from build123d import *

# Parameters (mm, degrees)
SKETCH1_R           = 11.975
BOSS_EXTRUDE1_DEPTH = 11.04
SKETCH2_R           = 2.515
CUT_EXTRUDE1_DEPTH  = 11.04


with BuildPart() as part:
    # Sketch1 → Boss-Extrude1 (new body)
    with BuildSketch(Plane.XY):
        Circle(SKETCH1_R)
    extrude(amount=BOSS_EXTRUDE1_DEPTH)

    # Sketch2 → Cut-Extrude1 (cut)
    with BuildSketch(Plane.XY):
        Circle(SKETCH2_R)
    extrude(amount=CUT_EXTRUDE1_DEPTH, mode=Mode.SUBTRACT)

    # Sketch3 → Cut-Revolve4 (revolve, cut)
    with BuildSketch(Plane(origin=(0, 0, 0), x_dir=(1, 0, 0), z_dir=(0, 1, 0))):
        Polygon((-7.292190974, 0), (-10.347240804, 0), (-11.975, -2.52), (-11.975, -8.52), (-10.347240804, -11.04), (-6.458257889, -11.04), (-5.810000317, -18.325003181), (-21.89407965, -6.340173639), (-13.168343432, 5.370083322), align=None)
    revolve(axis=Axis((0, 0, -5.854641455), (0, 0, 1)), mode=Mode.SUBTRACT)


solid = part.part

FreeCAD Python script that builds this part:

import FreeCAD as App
import Part
import Sketcher

V = App.Vector


def add_polygon(sketch, points):
    """Adds a closed chain of lines whose ends are joined by coincident constraints."""
    first, n = sketch.GeometryCount, len(points)
    for a, b in zip(points, points[1:] + points[:1]):
        sketch.addGeometry(Part.LineSegment(App.Vector(*a, 0), App.Vector(*b, 0)), False)
    for i in range(n):
        sketch.addConstraint(Sketcher.Constraint("Coincident", first + i, 2, first + (i + 1) % n, 1))

doc = App.newDocument("Part")
body = doc.addObject("PartDesign::Body", "Body")

# Sketch on XY plane
sketch1 = body.newObject("Sketcher::SketchObject", "Sketch")
sketch1.AttachmentSupport = (doc.getObject("XY_Plane"), [""])
sketch1.MapMode = "FlatFace"
sketch1.addGeometry(Part.Circle(V(0, 0, 0), V(0, 0, 1), 12), False)
sketch1.addConstraint(Sketcher.Constraint("Coincident", 0, 3, -1, 1))
sketch1.addConstraint(Sketcher.Constraint("Diameter", 0, 23.95))
pad1 = body.newObject("PartDesign::Pad", "Pad")
pad1.Profile = sketch1
pad1.Length = 11.04

# Sketch on XY plane
sketch2 = body.newObject("Sketcher::SketchObject", "Sketch001")
sketch2.AttachmentSupport = (doc.getObject("XY_Plane"), [""])
sketch2.MapMode = "FlatFace"
sketch2.addGeometry(Part.Circle(V(0, 0, 0), V(0, 0, 1), 2.5), False)
sketch2.addConstraint(Sketcher.Constraint("Coincident", 0, 3, -1, 1))
sketch2.addConstraint(Sketcher.Constraint("Diameter", 0, 5.03))
pocket1 = body.newObject("PartDesign::Pocket", "Pocket")
pocket1.Profile = sketch2
pocket1.Length = 11.04
pocket1.Reversed = True

# Sketch on XZ plane
sketch3 = body.newObject("Sketcher::SketchObject", "Sketch002")
sketch3.AttachmentSupport = (doc.getObject("XZ_Plane"), [""])
sketch3.MapMode = "FlatFace"
add_polygon(sketch3, [(-10.3, 0), (-7.3, 0), (-13.2, -5.4), (-21.9, 6.3), (-5.8, 18.3), (-6.5, 11), (-10.3, 11), (-12, 8.5), (-12, 2.5)])  # lines 0-8
sketch3.addConstraint(Sketcher.Constraint("Horizontal", 0))
sketch3.addConstraint(Sketcher.Constraint("Horizontal", 5))
sketch3.addConstraint(Sketcher.Constraint("Vertical", 7))
sketch3.addConstraint(Sketcher.Constraint("PointOnObject", 0, 2, -1))
sketch3.addConstraint(Sketcher.Constraint("Perpendicular", 2, 3))
sketch3.addConstraint(Sketcher.Constraint("Vertical", 5, 2, 8, 2))
sketch3.addConstraint(Sketcher.Constraint("Equal", 6, 8))
sketch3.addConstraint(Sketcher.Constraint("DistanceY", 7, 2, 7, 1, 6.0))
sketch3.addConstraint(Sketcher.Constraint("Distance", 6, 3.0))
sketch3.addConstraint(Sketcher.Constraint("DistanceX", 3, 2, -1, 1, 5.81))
sketch3.addConstraint(Sketcher.Constraint("DistanceY", -1, 1, 4, 2, 11.04))
sketch3.addConstraint(Sketcher.Constraint("DistanceX", 6, 2, -1, 1, 11.975))
sketch3.addConstraint(Sketcher.Constraint("DistanceX", 0, 1, 0, 2, 3.05505))
sketch3.addConstraint(Sketcher.Constraint("Distance", 2, 14.603718))
sketch3.addConstraint(Sketcher.Constraint("Distance", 3, 20.058259))
sketch3.addConstraint(Sketcher.Constraint("Distance", 4, 7.313789))
sketch3.addConstraint(Sketcher.Constraint("DistanceX", 5, 2, 5, 1, 3.888983))
sketch3.addConstraint(Sketcher.Constraint("DistanceX", 2, 2, -1, 1, 21.89408))
groove = body.newObject("PartDesign::Groove", "Groove")
groove.Profile = sketch3
groove.ReferenceAxis = (sketch3, ["V_Axis"])
groove.Angle = 360

doc.recompute()
